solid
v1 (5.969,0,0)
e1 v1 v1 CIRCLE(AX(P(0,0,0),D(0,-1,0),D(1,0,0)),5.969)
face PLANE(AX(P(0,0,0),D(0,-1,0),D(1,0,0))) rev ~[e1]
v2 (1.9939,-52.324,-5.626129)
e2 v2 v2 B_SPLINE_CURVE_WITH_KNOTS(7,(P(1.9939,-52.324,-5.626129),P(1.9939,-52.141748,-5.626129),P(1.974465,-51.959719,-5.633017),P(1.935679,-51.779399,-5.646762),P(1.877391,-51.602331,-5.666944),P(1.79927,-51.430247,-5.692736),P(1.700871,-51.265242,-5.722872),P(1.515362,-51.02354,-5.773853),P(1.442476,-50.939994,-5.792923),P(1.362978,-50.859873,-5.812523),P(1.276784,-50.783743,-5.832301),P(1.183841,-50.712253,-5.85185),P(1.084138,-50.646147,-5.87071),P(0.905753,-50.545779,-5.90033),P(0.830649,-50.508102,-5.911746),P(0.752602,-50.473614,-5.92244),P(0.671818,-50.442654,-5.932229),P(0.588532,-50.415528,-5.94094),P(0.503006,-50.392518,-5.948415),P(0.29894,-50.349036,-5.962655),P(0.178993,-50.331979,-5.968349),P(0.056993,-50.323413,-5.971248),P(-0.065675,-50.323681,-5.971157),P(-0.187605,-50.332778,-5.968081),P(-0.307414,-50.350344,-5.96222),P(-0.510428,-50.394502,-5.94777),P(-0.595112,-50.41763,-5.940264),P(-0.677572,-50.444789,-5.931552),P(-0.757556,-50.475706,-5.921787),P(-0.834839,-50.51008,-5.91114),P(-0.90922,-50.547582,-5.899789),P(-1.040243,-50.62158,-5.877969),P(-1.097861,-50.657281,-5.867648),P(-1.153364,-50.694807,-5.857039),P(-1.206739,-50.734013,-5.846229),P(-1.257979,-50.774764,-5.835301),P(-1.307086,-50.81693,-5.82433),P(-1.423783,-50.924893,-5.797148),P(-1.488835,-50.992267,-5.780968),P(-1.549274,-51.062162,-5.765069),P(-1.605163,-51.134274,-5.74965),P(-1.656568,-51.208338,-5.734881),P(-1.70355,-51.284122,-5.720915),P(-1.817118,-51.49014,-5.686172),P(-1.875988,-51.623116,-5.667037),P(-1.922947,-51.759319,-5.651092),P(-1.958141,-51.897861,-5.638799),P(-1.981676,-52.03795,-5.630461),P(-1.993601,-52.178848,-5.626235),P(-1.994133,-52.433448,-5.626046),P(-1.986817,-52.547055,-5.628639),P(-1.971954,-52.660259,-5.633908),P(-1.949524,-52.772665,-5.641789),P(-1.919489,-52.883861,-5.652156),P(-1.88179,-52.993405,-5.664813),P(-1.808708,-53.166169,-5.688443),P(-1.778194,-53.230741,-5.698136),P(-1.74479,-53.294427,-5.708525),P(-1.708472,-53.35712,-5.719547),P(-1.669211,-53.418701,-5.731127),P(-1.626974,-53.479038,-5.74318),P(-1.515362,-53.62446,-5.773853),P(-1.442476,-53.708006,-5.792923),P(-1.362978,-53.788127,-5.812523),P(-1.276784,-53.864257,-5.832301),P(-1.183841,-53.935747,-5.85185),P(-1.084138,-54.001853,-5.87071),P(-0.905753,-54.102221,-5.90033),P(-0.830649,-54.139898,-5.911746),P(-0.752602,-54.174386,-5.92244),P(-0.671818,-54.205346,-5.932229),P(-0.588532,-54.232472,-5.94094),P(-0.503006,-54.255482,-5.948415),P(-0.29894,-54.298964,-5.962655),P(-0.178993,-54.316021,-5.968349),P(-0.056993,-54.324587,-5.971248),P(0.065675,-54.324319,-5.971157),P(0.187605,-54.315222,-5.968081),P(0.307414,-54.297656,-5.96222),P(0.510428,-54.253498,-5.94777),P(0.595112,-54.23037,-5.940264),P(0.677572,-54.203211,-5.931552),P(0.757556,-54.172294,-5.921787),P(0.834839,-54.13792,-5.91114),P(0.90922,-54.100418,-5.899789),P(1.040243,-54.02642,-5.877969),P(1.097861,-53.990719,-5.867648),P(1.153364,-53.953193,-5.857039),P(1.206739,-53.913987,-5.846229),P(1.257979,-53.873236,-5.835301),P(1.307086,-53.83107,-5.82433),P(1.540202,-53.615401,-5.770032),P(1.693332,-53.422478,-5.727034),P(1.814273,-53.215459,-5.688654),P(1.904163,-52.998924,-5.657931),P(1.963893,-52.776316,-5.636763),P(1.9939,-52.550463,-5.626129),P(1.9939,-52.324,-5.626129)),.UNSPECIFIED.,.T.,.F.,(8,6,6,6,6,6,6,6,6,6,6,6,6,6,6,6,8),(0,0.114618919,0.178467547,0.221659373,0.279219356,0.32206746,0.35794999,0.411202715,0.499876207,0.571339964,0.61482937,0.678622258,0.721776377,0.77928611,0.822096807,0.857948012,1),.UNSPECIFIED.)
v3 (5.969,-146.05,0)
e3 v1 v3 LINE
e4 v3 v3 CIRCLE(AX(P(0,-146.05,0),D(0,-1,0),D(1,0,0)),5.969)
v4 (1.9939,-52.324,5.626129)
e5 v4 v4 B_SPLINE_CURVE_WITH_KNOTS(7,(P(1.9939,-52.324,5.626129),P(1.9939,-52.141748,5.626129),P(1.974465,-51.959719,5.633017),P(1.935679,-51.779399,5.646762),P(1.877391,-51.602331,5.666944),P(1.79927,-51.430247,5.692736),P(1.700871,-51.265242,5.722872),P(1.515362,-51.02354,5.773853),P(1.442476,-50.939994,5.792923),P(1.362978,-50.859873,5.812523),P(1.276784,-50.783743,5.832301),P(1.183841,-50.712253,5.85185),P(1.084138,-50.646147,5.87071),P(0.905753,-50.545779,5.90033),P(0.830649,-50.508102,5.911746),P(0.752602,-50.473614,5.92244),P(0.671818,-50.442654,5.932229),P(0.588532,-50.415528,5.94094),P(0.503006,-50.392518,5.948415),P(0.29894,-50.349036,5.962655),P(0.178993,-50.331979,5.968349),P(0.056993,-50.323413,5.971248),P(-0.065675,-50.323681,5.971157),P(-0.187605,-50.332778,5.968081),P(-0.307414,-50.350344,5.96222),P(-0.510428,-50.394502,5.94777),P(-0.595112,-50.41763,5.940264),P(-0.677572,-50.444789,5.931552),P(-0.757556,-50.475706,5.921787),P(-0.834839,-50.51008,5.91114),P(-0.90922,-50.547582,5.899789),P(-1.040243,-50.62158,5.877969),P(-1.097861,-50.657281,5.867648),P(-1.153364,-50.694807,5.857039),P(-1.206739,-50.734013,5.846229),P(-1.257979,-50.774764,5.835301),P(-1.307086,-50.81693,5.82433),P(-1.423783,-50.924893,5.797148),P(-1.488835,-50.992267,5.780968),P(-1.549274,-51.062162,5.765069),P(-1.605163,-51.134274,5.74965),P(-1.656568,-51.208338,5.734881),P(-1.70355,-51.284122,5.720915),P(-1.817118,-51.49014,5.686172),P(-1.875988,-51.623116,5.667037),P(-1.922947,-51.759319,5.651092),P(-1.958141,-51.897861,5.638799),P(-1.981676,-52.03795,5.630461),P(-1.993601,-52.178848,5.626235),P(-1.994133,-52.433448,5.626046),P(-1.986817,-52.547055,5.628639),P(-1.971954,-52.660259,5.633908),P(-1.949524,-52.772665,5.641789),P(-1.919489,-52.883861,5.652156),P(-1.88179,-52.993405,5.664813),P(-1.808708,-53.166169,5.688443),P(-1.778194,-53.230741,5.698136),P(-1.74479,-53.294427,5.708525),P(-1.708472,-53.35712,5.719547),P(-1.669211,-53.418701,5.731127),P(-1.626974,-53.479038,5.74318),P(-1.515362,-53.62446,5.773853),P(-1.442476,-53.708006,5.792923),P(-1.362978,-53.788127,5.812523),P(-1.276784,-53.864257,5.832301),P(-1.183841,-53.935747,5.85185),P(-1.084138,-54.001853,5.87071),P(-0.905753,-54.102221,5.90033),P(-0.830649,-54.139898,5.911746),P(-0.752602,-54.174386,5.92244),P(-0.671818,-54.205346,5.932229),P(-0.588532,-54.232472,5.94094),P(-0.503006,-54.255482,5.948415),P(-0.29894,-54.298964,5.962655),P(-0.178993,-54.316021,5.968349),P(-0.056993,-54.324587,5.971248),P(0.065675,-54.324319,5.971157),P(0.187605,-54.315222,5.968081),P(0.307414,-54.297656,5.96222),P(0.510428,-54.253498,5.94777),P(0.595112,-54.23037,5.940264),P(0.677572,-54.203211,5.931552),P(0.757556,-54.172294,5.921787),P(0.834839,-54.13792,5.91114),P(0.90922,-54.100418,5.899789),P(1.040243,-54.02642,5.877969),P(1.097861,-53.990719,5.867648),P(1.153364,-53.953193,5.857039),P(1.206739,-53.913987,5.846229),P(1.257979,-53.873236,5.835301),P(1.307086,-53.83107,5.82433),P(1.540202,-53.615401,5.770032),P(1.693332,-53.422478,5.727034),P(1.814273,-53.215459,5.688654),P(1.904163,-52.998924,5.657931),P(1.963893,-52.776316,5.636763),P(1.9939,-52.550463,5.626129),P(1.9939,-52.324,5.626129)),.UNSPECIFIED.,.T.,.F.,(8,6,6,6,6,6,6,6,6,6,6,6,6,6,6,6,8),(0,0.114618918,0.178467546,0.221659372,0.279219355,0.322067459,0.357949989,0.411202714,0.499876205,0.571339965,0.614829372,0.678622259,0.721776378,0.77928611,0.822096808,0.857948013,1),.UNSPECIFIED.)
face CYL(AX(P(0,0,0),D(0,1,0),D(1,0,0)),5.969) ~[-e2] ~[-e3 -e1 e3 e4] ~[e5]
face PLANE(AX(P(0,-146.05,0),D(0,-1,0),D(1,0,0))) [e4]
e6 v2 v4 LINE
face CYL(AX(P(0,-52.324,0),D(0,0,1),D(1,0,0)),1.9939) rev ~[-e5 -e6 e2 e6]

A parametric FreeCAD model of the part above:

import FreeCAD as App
import Part
import Sketcher
Q = App.Units.Quantity

doc = App.newDocument("Part")
params = doc.addObject("Spreadsheet::Sheet", "Params")
for row, (alias, value) in enumerate([
    ("sketch1_diameter", "0.47 in"),
    ("pad1_length", "5.75 in"),
    ("sketch2_diameter", "0.157 in"),
    ("pocket1_length", "1 in"),
], start=1):
    params.set(f"A{row}", alias)
    params.set(f"B{row}", "=" + value)
    params.setAlias(f"B{row}", alias)

body = doc.addObject("PartDesign::Body", "Body")

sketch1 = body.newObject("Sketcher::SketchObject", "Sketch")
sketch1.AttachmentSupport = (doc.getObject("XZ_Plane"), [""])
sketch1.MapMode = "FlatFace"
sketch1.addGeometry(Part.Circle(App.Vector(0, 0, 0), App.Vector(0, 0, 1), 6), False)
sketch1.addConstraint([
    Sketcher.Constraint("Coincident", 0, 3, -1, 1),
    Sketcher.Constraint("Diameter", 0, Q("0.47 in")),
])
sketch1.setExpression("Constraints[1]", "Params.sketch1_diameter")
pad1 = body.newObject("PartDesign::Pad", "Pad")
pad1.Profile = sketch1
pad1.setExpression("Length", "Params.pad1_length")

sketch2 = body.newObject("Sketcher::SketchObject", "Sketch001")
sketch2.AttachmentSupport = (doc.getObject("XY_Plane"), [""])
sketch2.MapMode = "FlatFace"
sketch2.addGeometry(Part.Circle(App.Vector(0, -52.3, 0), App.Vector(0, 0, 1), 2), False)
sketch2.addConstraint([
    Sketcher.Constraint("PointOnObject", 0, 3, -2),
    Sketcher.Constraint("Diameter", 0, Q("0.157 in")),
    Sketcher.Constraint("DistanceY", 0, 3, -1, 1, Q("2.06 in")),
])
sketch2.setExpression("Constraints[1]", "Params.sketch2_diameter")
pocket1 = body.newObject("PartDesign::Pocket", "Pocket")
pocket1.Profile = sketch2
pocket1.setExpression("Length", "Params.pocket1_length")
pocket1.Midplane = True

doc.recompute()
